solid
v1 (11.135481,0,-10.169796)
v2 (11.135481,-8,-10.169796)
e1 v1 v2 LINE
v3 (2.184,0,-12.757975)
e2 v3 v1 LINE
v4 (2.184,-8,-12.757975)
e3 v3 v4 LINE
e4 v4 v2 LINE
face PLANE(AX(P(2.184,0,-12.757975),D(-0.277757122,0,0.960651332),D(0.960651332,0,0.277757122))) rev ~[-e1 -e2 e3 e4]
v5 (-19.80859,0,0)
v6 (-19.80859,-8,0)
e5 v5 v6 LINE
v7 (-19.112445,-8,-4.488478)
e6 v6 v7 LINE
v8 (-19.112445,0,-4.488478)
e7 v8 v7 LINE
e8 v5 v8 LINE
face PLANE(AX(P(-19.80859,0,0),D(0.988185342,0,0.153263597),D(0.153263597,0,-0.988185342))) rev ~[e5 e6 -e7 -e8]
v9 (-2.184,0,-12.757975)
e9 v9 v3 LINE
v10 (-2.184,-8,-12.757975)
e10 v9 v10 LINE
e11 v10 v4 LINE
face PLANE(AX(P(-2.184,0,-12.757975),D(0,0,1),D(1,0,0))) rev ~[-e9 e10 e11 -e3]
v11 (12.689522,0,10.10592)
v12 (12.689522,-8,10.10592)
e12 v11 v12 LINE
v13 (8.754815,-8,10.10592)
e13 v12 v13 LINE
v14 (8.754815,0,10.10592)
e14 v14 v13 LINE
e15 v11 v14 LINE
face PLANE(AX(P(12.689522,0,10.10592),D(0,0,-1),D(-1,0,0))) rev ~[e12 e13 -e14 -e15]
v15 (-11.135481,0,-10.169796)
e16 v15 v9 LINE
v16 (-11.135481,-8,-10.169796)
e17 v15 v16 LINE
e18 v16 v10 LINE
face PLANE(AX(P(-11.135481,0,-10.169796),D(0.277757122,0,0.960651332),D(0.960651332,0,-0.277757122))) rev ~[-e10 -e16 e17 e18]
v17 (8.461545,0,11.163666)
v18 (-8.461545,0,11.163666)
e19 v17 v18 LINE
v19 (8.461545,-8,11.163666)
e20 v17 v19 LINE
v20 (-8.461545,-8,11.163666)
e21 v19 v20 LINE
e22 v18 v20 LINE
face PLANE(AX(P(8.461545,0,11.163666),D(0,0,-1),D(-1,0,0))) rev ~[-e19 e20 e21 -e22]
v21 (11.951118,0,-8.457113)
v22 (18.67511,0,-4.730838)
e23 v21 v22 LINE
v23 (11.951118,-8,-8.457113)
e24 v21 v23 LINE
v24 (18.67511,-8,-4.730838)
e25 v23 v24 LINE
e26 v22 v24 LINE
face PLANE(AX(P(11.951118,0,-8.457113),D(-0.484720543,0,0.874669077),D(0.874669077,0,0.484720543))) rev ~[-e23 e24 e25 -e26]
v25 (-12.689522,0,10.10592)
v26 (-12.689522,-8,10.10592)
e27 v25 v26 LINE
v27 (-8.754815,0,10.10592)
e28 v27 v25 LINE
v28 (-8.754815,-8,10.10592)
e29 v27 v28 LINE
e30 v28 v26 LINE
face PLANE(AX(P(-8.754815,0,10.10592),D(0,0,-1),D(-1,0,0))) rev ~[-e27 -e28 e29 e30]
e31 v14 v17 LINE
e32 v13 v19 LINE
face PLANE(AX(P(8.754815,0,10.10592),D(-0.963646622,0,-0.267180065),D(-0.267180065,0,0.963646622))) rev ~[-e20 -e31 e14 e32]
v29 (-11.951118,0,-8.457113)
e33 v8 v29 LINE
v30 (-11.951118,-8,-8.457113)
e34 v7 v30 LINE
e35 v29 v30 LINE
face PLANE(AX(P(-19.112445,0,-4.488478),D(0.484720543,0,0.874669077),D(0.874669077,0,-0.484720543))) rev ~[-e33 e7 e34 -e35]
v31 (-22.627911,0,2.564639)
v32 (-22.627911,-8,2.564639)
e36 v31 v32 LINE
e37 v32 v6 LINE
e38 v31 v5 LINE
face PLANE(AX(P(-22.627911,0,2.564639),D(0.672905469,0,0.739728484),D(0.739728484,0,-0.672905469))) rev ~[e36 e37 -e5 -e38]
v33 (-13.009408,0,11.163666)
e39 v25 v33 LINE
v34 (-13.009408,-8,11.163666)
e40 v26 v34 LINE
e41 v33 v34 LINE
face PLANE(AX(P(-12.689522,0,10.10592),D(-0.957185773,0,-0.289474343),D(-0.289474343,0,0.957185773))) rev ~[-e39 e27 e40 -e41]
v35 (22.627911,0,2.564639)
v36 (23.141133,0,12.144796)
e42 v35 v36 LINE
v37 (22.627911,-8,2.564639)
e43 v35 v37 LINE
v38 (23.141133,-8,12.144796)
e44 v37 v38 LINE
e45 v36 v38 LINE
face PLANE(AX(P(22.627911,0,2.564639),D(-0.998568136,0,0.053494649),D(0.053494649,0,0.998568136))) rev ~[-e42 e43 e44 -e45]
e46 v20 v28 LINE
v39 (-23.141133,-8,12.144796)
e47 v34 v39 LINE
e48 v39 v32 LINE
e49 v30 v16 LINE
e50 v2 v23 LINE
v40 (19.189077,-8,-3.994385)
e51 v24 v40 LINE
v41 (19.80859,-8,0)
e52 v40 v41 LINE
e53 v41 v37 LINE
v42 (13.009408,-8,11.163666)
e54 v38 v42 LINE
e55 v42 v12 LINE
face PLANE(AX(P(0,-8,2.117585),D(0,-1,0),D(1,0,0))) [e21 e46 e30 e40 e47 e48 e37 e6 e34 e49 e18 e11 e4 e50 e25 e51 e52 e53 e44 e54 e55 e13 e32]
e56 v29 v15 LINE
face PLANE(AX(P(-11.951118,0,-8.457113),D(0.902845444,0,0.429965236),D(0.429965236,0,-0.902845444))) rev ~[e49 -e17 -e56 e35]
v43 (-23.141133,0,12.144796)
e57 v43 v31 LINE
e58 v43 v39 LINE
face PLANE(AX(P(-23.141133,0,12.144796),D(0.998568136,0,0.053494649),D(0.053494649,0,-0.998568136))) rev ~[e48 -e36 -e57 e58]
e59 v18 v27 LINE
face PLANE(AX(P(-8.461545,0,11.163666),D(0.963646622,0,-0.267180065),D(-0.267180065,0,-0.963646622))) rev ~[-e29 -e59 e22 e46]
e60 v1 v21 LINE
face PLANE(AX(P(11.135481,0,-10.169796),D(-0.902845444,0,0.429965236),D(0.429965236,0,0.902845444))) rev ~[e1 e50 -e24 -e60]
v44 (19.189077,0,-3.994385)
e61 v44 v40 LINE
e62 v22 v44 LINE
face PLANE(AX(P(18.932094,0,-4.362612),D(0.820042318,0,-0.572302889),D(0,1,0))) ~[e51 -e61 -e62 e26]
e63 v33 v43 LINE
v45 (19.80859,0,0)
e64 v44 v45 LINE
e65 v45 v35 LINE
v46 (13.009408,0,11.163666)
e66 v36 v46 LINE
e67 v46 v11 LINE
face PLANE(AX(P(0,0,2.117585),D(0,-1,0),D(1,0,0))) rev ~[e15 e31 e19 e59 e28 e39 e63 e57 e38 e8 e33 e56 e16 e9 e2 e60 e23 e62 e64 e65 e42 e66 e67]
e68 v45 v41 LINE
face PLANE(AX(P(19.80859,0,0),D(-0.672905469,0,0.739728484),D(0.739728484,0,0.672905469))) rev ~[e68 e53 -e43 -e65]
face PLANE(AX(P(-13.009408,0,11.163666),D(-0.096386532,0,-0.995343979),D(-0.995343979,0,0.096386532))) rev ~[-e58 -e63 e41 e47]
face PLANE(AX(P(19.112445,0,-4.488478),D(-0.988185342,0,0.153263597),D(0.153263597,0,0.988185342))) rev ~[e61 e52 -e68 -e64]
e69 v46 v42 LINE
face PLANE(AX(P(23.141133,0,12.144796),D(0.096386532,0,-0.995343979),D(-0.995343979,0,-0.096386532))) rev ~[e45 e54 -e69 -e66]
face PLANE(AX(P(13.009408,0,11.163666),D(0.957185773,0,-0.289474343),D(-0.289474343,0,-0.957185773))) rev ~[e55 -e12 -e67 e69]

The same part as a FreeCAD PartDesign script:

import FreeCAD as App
import Part
import Sketcher

V = App.Vector
Q = App.Units.Quantity


def edges_at(feature, points):
    """Names of the edges that pass closest to the given points."""
    edges = feature.Shape.Edges
    near = lambda p: min(range(len(edges)), key=lambda i: edges[i].distToShape(Part.Vertex(*p))[0])
    return sorted({f"Edge{near(p) + 1}" for p in points})


def add_polygon(sketch, points):
    """Adds a closed chain of lines whose ends are joined by coincident constraints."""
    first, n = sketch.GeometryCount, len(points)
    for a, b in zip(points, points[1:] + points[:1]):
        sketch.addGeometry(Part.LineSegment(App.Vector(*a, 0), App.Vector(*b, 0)), False)
    for i in range(n):
        sketch.addConstraint(Sketcher.Constraint("Coincident", first + i, 2, first + (i + 1) % n, 1))

doc = App.newDocument("Part")
body = doc.addObject("PartDesign::Body", "Body")

sketch1 = body.newObject("Sketcher::SketchObject", "Sketch")
sketch1.AttachmentSupport = (doc.getObject("XZ_Plane"), [""])
sketch1.MapMode = "FlatFace"
add_polygon(sketch1, [(-13, 11.2), (-23.1, 12.1), (-22.6, 2.6), (-19.8, 0), (-19.1, -4.5), (-12, -8.5), (-11.1, -10.2), (-2.2, -12.8), (2.2, -12.8), (11.1, -10.2), (12, -8.5), (19.1, -4.5), (19.8, 0), (22.6, 2.6), (23.1, 12.1), (13, 11.2), (12.7, 10.1), (8.8, 10.1), (8.5, 11.2), (-8.5, 11.2), (-8.8, 10.1), (-12.7, 10.1)])
sketch1.addConstraint([
    Sketcher.Constraint("Horizontal", 7),
    Sketcher.Constraint("Horizontal", 16),
    Sketcher.Constraint("Horizontal", 18),
    Sketcher.Constraint("Horizontal", 20),
    Sketcher.Constraint("Symmetric", 2, 2, 11, 2, -1, 1),
    Sketcher.Constraint("Symmetric", 5, 2, 8, 2, -2),
    Sketcher.Constraint("Symmetric", 4, 2, 9, 2, -2),
    Sketcher.Constraint("Symmetric", 3, 2, 10, 2, -2),
    Sketcher.Constraint("Symmetric", 1, 2, 12, 2, -2),
    Sketcher.Constraint("Symmetric", 0, 2, 13, 2, -2),
    Sketcher.Constraint("Symmetric", 16, 2, 19, 2, -2),
    Sketcher.Constraint("Symmetric", 14, 2, 21, 2, -2),
    Sketcher.Constraint("PointOnObject", 2, 2, -1),
    Sketcher.Constraint("Horizontal", 14, 2, 17, 2),
    Sketcher.Constraint("Equal", 16, 20),
    Sketcher.Constraint("Equal", 6, 8),
    Sketcher.Constraint("Equal", 17, 19),
    Sketcher.Constraint("DistanceX", 7, 1, 7, 2, Q("4.368 mm")),
    Sketcher.Constraint("DistanceX", 18, 2, 18, 1, Q("16.92309 mm")),
    Sketcher.Constraint("DistanceX", 4, 2, 8, 2, Q("23.086599 mm")),
    Sketcher.Constraint("Distance", 0, Q("10.179119 mm")),
    Sketcher.Constraint("Distance", 2, Q("3.811292 mm")),
    Sketcher.Constraint("Distance", 3, Q("4.542142 mm")),
    Sketcher.Constraint("Distance", 4, Q("8.18747 mm")),
    Sketcher.Constraint("Distance", 15, Q("1.105058 mm")),
    Sketcher.Constraint("Distance", 17, Q("1.097649 mm")),
    Sketcher.Constraint("DistanceX", 16, 2, 16, 1, Q("3.934707 mm")),
    Sketcher.Constraint("DistanceX", 1, 2, -1, 1, Q("22.627911 mm")),
    Sketcher.Constraint("DistanceY", -1, 1, 1, 2, Q("2.564639 mm")),
    Sketcher.Constraint("DistanceX", 5, 2, -1, 1, Q("11.135481 mm")),
    Sketcher.Constraint("DistanceY", -1, 1, 15, 2, Q("10.10592 mm")),
    Sketcher.Constraint("DistanceX", 0, 2, 1, 2, Q("0.513222 mm")),
    Sketcher.Constraint("DistanceY", 4, 2, 1, 2, Q("11.021752 mm")),
    Sketcher.Constraint("DistanceY", 4, 2, 0, 2, Q("20.601909 mm")),
    Sketcher.Constraint("DistanceY", 5, 2, 0, 2, Q("22.314592 mm")),
    Sketcher.Constraint("DistanceY", 6, 2, 5, 2, Q("2.588179 mm")),
])
pad1 = body.newObject("PartDesign::Pad", "Pad")
pad1.Profile = sketch1
pad1.Length = 8

sketch2 = body.newObject("Sketcher::SketchObject", "Sketch001")
sketch2.AttachmentSupport = (doc.getObject("XZ_Plane"), [""])
sketch2.MapMode = "FlatFace"
add_polygon(sketch2, [(-13, 11.2), (-23.1, 12.1), (-22.6, 2.6), (-19.8, 0), (-19.1, -4.5), (-12, -8.5), (-11.1, -10.2), (-2.2, -12.8), (2.2, -12.8), (11.1, -10.2), (12, -8.5), (19.1, -4.5), (19.8, 0), (22.6, 2.6), (23.1, 12.1), (13, 11.2), (12.7, 10.1), (8.8, 10.1), (8.5, 11.2), (-8.5, 11.2), (-8.8, 10.1), (-12.7, 10.1)])
sketch2.addConstraint([
    Sketcher.Constraint("Horizontal", 7),
    Sketcher.Constraint("Horizontal", 16),
    Sketcher.Constraint("Horizontal", 18),
    Sketcher.Constraint("Horizontal", 20),
    Sketcher.Constraint("Symmetric", 2, 2, 11, 2, -1, 1),
    Sketcher.Constraint("Symmetric", 5, 2, 8, 2, -2),
    Sketcher.Constraint("Symmetric", 4, 2, 9, 2, -2),
    Sketcher.Constraint("Symmetric", 3, 2, 10, 2, -2),
    Sketcher.Constraint("Symmetric", 1, 2, 12, 2, -2),
    Sketcher.Constraint("Symmetric", 0, 2, 13, 2, -2),
    Sketcher.Constraint("Symmetric", 16, 2, 19, 2, -2),
    Sketcher.Constraint("Symmetric", 14, 2, 21, 2, -2),
    Sketcher.Constraint("PointOnObject", 2, 2, -1),
    Sketcher.Constraint("Horizontal", 14, 2, 17, 2),
    Sketcher.Constraint("Equal", 16, 20),
    Sketcher.Constraint("Equal", 6, 8),
    Sketcher.Constraint("Equal", 17, 19),
    Sketcher.Constraint("DistanceX", 7, 1, 7, 2, Q("4.368 mm")),
    Sketcher.Constraint("DistanceX", 18, 2, 18, 1, Q("16.92309 mm")),
    Sketcher.Constraint("DistanceX", 4, 2, 8, 2, Q("23.086599 mm")),
    Sketcher.Constraint("Distance", 0, Q("10.179119 mm")),
    Sketcher.Constraint("Distance", 2, Q("3.811292 mm")),
    Sketcher.Constraint("Distance", 3, Q("4.542142 mm")),
    Sketcher.Constraint("Distance", 4, Q("8.18747 mm")),
    Sketcher.Constraint("Distance", 15, Q("1.105058 mm")),
    Sketcher.Constraint("Distance", 17, Q("1.097649 mm")),
    Sketcher.Constraint("DistanceX", 16, 2, 16, 1, Q("3.934707 mm")),
    Sketcher.Constraint("DistanceX", 1, 2, -1, 1, Q("22.627911 mm")),
    Sketcher.Constraint("DistanceY", -1, 1, 1, 2, Q("2.564639 mm")),
    Sketcher.Constraint("DistanceX", 5, 2, -1, 1, Q("11.135481 mm")),
    Sketcher.Constraint("DistanceY", -1, 1, 15, 2, Q("10.10592 mm")),
    Sketcher.Constraint("DistanceX", 0, 2, 1, 2, Q("0.513222 mm")),
    Sketcher.Constraint("DistanceY", 4, 2, 1, 2, Q("11.021752 mm")),
    Sketcher.Constraint("DistanceY", 4, 2, 0, 2, Q("20.601909 mm")),
    Sketcher.Constraint("DistanceY", 5, 2, 0, 2, Q("22.314592 mm")),
    Sketcher.Constraint("DistanceY", 6, 2, 5, 2, Q("2.588179 mm")),
])
pad2 = body.newObject("PartDesign::Pad", "Pad001")
pad2.Profile = sketch2
pad2.Length = 8
doc.recompute()

chamfer = body.newObject("PartDesign::Chamfer", "Chamfer")
chamfer.Base = (pad2, edges_at(pad2, [(19.112, -4, -4.488)]))
chamfer.Size = 0.5

doc.recompute()
